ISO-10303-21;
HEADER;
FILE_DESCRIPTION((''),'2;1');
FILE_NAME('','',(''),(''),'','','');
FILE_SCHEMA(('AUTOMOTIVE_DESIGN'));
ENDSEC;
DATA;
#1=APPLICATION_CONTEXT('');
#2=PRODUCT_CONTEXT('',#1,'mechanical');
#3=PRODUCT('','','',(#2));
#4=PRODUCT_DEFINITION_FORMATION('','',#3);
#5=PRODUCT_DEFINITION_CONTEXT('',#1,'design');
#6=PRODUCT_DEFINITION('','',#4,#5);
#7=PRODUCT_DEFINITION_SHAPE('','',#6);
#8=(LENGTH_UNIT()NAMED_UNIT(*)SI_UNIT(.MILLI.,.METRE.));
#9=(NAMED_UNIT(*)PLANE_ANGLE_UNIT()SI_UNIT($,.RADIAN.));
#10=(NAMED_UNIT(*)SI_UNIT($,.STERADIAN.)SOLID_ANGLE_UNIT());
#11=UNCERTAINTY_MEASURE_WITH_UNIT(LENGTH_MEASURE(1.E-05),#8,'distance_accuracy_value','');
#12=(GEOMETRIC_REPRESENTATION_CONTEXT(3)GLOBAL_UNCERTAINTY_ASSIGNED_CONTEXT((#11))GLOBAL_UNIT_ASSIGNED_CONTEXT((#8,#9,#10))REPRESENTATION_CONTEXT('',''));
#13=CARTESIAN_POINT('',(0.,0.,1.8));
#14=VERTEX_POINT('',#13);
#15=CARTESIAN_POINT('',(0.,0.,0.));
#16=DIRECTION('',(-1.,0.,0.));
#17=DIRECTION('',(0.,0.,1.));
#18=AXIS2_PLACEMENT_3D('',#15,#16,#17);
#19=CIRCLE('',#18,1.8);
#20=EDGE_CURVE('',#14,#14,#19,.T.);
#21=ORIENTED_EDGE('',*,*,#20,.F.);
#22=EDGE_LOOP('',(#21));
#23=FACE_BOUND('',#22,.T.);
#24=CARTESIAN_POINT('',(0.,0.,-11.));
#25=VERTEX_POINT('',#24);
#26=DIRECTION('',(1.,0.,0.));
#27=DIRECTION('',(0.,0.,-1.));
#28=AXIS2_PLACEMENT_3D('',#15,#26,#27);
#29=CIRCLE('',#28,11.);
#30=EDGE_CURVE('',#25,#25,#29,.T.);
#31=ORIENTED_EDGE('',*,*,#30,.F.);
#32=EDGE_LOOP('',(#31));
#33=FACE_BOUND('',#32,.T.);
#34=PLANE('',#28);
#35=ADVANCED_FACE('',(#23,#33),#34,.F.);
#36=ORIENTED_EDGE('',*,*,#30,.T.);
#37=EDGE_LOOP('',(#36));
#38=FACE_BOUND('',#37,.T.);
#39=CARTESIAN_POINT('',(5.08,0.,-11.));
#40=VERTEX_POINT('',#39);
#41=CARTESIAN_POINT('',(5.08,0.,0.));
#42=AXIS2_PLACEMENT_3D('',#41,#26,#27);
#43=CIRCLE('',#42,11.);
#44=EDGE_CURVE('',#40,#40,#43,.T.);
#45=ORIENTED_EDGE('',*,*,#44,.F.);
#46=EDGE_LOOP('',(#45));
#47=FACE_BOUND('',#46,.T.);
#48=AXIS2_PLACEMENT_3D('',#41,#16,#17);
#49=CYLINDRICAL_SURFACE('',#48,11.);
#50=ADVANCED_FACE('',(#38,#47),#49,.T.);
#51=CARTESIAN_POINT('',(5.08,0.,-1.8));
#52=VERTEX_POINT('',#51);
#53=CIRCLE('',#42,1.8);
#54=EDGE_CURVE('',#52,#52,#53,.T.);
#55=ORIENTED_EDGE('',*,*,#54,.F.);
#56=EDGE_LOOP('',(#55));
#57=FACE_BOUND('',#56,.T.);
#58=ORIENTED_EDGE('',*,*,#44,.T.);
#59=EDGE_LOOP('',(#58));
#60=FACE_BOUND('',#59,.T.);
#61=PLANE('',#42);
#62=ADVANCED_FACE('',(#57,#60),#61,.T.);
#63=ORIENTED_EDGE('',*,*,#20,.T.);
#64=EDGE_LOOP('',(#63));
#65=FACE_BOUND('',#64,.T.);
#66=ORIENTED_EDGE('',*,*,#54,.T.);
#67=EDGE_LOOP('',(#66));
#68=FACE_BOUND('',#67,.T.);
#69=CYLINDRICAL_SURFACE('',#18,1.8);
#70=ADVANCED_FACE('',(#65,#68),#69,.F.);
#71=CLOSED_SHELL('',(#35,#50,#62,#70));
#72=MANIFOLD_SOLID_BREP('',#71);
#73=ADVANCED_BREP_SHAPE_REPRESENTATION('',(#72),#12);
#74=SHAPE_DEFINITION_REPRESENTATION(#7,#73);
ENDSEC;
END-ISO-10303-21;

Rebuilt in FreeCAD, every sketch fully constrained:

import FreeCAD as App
import Part
import Sketcher
from FreeCAD import Vector
Q = App.Units.Quantity

doc = App.newDocument("Part")
params = doc.addObject("Spreadsheet::Sheet", "Params")
for row, (alias, value) in enumerate([
    ("sketch1_diameter", "22 mm"),
    ("pad1_length", "5.08 mm"),
    ("sketch2_diameter", "3.6 mm"),
    ("hole_diameter", "3.6 mm"),
    ("hole_depth", "5.08 mm"),
], start=1):
    params.set(f"A{row}", alias)
    params.set(f"B{row}", "=" + value)
    params.setAlias(f"B{row}", alias)

body = doc.addObject("PartDesign::Body", "Body")

sketch1 = body.newObject("Sketcher::SketchObject", "Sketch")
sketch1.AttachmentSupport = (doc.getObject("YZ_Plane"), [""])
sketch1.MapMode = "FlatFace"
sketch1.addGeometry(Part.Circle(Vector(0, 0, 0), Vector(0, 0, 1), 11), False)
sketch1.addConstraint([
    Sketcher.Constraint("Coincident", 0, 3, -1, 1),
    Sketcher.Constraint("Diameter", 0, Q("22 mm")),
])
sketch1.setExpression("Constraints[1]", "Params.sketch1_diameter")
pad1 = body.newObject("PartDesign::Pad", "Pad")
pad1.Profile = sketch1
pad1.setExpression("Length", "Params.pad1_length")

sketch2 = body.newObject("Sketcher::SketchObject", "Sketch001")
sketch2.AttachmentSupport = (doc.getObject("YZ_Plane"), [""])
sketch2.MapMode = "FlatFace"
sketch2.addGeometry(Part.Circle(Vector(0, 0, 0), Vector(0, 0, 1), 1.8), False)
sketch2.addConstraint([
    Sketcher.Constraint("Coincident", 0, 3, -1, 1),
    Sketcher.Constraint("Diameter", 0, Q("3.6 mm")),
])
sketch2.setExpression("Constraints[1]", "Params.sketch2_diameter")
doc.recompute()
hole = body.newObject("PartDesign::Hole", "Hole")
hole.Profile = sketch2
hole.ThreadType = "None"
hole.setExpression("Diameter", "Params.hole_diameter")
hole.DepthType = "Dimension"
hole.setExpression("Depth", "Params.hole_depth")
hole.DrillPoint = "Flat"
hole.Reversed = True

doc.recompute()
